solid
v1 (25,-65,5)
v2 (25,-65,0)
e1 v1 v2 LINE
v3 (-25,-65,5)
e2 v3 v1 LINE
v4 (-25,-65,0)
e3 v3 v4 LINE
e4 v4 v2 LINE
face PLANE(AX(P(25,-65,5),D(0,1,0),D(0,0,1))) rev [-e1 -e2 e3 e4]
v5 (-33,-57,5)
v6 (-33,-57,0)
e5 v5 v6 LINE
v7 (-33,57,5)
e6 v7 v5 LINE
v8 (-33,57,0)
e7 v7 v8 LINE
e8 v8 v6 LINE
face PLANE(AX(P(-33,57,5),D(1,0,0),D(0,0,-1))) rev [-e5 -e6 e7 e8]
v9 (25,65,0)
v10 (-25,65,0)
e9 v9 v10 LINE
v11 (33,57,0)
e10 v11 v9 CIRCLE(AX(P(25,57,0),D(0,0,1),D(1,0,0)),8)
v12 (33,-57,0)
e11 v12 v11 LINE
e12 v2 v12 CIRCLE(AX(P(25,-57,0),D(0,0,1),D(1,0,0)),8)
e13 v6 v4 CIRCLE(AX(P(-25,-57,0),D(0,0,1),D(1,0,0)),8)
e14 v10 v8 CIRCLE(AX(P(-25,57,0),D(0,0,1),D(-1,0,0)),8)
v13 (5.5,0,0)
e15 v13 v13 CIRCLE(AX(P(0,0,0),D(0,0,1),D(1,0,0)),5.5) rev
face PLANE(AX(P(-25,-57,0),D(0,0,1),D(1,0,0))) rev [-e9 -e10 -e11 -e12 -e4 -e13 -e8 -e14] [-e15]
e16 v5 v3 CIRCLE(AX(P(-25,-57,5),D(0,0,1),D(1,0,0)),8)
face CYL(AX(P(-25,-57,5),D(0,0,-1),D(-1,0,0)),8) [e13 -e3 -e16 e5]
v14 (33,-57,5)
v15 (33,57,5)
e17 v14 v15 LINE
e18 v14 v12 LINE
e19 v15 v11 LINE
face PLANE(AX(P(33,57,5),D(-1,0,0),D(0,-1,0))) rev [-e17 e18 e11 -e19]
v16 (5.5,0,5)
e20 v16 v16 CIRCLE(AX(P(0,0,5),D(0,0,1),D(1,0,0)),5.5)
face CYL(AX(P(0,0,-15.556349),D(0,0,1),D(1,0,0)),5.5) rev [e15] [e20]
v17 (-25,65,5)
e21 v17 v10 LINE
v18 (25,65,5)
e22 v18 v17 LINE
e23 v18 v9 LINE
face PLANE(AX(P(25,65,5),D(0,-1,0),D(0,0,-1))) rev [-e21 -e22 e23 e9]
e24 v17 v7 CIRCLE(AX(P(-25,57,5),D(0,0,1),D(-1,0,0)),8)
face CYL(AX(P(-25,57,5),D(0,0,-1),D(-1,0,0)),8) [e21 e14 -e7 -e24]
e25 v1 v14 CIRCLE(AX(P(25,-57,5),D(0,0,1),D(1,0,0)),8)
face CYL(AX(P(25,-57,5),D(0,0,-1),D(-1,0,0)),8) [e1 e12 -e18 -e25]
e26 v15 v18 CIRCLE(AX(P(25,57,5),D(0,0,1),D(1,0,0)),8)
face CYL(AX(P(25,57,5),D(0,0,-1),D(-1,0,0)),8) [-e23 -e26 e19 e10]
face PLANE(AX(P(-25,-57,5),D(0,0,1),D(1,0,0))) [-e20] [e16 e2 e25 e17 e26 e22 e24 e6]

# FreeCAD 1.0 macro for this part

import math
import FreeCAD as App
import Part
import Sketcher
from FreeCAD import Vector

doc = App.newDocument("Part")
body = doc.addObject("PartDesign::Body", "Body")

# Sketch on XY plane
sketch1 = body.newObject("Sketcher::SketchObject", "Sketch")
sketch1.AttachmentSupport = (doc.getObject("XY_Plane"), [""])
sketch1.MapMode = "FlatFace"
sketch1.addGeometry([
    Part.LineSegment(Vector(25, 65, 0), Vector(-25, 65, 0)),  # 0
    Part.ArcOfCircle(Part.Circle(Vector(-25, 57, 0), Vector(0, 0, 1), 8), math.radians(90), math.radians(180)),  # 1
    Part.LineSegment(Vector(-33, 57, 0), Vector(-33, -57, 0)),  # 2
    Part.ArcOfCircle(Part.Circle(Vector(-25, -57, 0), Vector(0, 0, 1), 8), math.radians(-180), math.radians(-90)),  # 3
    Part.LineSegment(Vector(-25, -65, 0), Vector(25, -65, 0)),  # 4
    Part.ArcOfCircle(Part.Circle(Vector(25, -57, 0), Vector(0, 0, 1), 8), math.radians(-90), math.radians(0)),  # 5
    Part.LineSegment(Vector(33, -57, 0), Vector(33, 57, 0)),  # 6
    Part.ArcOfCircle(Part.Circle(Vector(25, 57, 0), Vector(0, 0, 1), 8), math.radians(0), math.radians(90)),  # 7
], False)
sketch1.addConstraint([
    Sketcher.Constraint("Tangent", 0, 2, 1, 1),
    Sketcher.Constraint("Tangent", 1, 2, 2, 1),
    Sketcher.Constraint("Tangent", 2, 2, 3, 1),
    Sketcher.Constraint("Tangent", 3, 2, 4, 1),
    Sketcher.Constraint("Tangent", 4, 2, 5, 1),
    Sketcher.Constraint("Tangent", 5, 2, 6, 1),
    Sketcher.Constraint("Tangent", 6, 2, 7, 1),
    Sketcher.Constraint("Tangent", 7, 2, 0, 1),
    Sketcher.Constraint("Horizontal", 0),
    Sketcher.Constraint("Vertical", 2),
    Sketcher.Constraint("Horizontal", 4),
    Sketcher.Constraint("Vertical", 6),
    Sketcher.Constraint("Equal", 1, 3),
    Sketcher.Constraint("Equal", 3, 5),
    Sketcher.Constraint("Equal", 5, 7),
    Sketcher.Constraint("Symmetric", 1, 3, 5, 3, -1, 1),
    Sketcher.Constraint("Radius", 1, 8.0),
    Sketcher.Constraint("DistanceX", 0, 2, 0, 1, 50.0),
    Sketcher.Constraint("DistanceY", 2, 2, 2, 1, 114.0),
])
pad1 = body.newObject("PartDesign::Pad", "Pad")
pad1.Profile = sketch1
pad1.Length = 5

# Sketch on XY plane
sketch2 = body.newObject("Sketcher::SketchObject", "Sketch001")
sketch2.AttachmentSupport = (doc.getObject("XY_Plane"), [""])
sketch2.MapMode = "FlatFace"
sketch2.AttachmentOffset = App.Placement(Vector(0, 0, 5), App.Rotation())
sketch2.addGeometry(Part.Circle(Vector(0, 0, 0), Vector(0, 0, 1), 6), False)
sketch2.addConstraint([
    Sketcher.Constraint("Coincident", 0, 3, -1, 1),
    Sketcher.Constraint("Diameter", 0, 11.0),
])
pocket1 = body.newObject("PartDesign::Pocket", "Pocket")
pocket1.Profile = sketch2
pocket1.Length = 5

doc.recompute()
